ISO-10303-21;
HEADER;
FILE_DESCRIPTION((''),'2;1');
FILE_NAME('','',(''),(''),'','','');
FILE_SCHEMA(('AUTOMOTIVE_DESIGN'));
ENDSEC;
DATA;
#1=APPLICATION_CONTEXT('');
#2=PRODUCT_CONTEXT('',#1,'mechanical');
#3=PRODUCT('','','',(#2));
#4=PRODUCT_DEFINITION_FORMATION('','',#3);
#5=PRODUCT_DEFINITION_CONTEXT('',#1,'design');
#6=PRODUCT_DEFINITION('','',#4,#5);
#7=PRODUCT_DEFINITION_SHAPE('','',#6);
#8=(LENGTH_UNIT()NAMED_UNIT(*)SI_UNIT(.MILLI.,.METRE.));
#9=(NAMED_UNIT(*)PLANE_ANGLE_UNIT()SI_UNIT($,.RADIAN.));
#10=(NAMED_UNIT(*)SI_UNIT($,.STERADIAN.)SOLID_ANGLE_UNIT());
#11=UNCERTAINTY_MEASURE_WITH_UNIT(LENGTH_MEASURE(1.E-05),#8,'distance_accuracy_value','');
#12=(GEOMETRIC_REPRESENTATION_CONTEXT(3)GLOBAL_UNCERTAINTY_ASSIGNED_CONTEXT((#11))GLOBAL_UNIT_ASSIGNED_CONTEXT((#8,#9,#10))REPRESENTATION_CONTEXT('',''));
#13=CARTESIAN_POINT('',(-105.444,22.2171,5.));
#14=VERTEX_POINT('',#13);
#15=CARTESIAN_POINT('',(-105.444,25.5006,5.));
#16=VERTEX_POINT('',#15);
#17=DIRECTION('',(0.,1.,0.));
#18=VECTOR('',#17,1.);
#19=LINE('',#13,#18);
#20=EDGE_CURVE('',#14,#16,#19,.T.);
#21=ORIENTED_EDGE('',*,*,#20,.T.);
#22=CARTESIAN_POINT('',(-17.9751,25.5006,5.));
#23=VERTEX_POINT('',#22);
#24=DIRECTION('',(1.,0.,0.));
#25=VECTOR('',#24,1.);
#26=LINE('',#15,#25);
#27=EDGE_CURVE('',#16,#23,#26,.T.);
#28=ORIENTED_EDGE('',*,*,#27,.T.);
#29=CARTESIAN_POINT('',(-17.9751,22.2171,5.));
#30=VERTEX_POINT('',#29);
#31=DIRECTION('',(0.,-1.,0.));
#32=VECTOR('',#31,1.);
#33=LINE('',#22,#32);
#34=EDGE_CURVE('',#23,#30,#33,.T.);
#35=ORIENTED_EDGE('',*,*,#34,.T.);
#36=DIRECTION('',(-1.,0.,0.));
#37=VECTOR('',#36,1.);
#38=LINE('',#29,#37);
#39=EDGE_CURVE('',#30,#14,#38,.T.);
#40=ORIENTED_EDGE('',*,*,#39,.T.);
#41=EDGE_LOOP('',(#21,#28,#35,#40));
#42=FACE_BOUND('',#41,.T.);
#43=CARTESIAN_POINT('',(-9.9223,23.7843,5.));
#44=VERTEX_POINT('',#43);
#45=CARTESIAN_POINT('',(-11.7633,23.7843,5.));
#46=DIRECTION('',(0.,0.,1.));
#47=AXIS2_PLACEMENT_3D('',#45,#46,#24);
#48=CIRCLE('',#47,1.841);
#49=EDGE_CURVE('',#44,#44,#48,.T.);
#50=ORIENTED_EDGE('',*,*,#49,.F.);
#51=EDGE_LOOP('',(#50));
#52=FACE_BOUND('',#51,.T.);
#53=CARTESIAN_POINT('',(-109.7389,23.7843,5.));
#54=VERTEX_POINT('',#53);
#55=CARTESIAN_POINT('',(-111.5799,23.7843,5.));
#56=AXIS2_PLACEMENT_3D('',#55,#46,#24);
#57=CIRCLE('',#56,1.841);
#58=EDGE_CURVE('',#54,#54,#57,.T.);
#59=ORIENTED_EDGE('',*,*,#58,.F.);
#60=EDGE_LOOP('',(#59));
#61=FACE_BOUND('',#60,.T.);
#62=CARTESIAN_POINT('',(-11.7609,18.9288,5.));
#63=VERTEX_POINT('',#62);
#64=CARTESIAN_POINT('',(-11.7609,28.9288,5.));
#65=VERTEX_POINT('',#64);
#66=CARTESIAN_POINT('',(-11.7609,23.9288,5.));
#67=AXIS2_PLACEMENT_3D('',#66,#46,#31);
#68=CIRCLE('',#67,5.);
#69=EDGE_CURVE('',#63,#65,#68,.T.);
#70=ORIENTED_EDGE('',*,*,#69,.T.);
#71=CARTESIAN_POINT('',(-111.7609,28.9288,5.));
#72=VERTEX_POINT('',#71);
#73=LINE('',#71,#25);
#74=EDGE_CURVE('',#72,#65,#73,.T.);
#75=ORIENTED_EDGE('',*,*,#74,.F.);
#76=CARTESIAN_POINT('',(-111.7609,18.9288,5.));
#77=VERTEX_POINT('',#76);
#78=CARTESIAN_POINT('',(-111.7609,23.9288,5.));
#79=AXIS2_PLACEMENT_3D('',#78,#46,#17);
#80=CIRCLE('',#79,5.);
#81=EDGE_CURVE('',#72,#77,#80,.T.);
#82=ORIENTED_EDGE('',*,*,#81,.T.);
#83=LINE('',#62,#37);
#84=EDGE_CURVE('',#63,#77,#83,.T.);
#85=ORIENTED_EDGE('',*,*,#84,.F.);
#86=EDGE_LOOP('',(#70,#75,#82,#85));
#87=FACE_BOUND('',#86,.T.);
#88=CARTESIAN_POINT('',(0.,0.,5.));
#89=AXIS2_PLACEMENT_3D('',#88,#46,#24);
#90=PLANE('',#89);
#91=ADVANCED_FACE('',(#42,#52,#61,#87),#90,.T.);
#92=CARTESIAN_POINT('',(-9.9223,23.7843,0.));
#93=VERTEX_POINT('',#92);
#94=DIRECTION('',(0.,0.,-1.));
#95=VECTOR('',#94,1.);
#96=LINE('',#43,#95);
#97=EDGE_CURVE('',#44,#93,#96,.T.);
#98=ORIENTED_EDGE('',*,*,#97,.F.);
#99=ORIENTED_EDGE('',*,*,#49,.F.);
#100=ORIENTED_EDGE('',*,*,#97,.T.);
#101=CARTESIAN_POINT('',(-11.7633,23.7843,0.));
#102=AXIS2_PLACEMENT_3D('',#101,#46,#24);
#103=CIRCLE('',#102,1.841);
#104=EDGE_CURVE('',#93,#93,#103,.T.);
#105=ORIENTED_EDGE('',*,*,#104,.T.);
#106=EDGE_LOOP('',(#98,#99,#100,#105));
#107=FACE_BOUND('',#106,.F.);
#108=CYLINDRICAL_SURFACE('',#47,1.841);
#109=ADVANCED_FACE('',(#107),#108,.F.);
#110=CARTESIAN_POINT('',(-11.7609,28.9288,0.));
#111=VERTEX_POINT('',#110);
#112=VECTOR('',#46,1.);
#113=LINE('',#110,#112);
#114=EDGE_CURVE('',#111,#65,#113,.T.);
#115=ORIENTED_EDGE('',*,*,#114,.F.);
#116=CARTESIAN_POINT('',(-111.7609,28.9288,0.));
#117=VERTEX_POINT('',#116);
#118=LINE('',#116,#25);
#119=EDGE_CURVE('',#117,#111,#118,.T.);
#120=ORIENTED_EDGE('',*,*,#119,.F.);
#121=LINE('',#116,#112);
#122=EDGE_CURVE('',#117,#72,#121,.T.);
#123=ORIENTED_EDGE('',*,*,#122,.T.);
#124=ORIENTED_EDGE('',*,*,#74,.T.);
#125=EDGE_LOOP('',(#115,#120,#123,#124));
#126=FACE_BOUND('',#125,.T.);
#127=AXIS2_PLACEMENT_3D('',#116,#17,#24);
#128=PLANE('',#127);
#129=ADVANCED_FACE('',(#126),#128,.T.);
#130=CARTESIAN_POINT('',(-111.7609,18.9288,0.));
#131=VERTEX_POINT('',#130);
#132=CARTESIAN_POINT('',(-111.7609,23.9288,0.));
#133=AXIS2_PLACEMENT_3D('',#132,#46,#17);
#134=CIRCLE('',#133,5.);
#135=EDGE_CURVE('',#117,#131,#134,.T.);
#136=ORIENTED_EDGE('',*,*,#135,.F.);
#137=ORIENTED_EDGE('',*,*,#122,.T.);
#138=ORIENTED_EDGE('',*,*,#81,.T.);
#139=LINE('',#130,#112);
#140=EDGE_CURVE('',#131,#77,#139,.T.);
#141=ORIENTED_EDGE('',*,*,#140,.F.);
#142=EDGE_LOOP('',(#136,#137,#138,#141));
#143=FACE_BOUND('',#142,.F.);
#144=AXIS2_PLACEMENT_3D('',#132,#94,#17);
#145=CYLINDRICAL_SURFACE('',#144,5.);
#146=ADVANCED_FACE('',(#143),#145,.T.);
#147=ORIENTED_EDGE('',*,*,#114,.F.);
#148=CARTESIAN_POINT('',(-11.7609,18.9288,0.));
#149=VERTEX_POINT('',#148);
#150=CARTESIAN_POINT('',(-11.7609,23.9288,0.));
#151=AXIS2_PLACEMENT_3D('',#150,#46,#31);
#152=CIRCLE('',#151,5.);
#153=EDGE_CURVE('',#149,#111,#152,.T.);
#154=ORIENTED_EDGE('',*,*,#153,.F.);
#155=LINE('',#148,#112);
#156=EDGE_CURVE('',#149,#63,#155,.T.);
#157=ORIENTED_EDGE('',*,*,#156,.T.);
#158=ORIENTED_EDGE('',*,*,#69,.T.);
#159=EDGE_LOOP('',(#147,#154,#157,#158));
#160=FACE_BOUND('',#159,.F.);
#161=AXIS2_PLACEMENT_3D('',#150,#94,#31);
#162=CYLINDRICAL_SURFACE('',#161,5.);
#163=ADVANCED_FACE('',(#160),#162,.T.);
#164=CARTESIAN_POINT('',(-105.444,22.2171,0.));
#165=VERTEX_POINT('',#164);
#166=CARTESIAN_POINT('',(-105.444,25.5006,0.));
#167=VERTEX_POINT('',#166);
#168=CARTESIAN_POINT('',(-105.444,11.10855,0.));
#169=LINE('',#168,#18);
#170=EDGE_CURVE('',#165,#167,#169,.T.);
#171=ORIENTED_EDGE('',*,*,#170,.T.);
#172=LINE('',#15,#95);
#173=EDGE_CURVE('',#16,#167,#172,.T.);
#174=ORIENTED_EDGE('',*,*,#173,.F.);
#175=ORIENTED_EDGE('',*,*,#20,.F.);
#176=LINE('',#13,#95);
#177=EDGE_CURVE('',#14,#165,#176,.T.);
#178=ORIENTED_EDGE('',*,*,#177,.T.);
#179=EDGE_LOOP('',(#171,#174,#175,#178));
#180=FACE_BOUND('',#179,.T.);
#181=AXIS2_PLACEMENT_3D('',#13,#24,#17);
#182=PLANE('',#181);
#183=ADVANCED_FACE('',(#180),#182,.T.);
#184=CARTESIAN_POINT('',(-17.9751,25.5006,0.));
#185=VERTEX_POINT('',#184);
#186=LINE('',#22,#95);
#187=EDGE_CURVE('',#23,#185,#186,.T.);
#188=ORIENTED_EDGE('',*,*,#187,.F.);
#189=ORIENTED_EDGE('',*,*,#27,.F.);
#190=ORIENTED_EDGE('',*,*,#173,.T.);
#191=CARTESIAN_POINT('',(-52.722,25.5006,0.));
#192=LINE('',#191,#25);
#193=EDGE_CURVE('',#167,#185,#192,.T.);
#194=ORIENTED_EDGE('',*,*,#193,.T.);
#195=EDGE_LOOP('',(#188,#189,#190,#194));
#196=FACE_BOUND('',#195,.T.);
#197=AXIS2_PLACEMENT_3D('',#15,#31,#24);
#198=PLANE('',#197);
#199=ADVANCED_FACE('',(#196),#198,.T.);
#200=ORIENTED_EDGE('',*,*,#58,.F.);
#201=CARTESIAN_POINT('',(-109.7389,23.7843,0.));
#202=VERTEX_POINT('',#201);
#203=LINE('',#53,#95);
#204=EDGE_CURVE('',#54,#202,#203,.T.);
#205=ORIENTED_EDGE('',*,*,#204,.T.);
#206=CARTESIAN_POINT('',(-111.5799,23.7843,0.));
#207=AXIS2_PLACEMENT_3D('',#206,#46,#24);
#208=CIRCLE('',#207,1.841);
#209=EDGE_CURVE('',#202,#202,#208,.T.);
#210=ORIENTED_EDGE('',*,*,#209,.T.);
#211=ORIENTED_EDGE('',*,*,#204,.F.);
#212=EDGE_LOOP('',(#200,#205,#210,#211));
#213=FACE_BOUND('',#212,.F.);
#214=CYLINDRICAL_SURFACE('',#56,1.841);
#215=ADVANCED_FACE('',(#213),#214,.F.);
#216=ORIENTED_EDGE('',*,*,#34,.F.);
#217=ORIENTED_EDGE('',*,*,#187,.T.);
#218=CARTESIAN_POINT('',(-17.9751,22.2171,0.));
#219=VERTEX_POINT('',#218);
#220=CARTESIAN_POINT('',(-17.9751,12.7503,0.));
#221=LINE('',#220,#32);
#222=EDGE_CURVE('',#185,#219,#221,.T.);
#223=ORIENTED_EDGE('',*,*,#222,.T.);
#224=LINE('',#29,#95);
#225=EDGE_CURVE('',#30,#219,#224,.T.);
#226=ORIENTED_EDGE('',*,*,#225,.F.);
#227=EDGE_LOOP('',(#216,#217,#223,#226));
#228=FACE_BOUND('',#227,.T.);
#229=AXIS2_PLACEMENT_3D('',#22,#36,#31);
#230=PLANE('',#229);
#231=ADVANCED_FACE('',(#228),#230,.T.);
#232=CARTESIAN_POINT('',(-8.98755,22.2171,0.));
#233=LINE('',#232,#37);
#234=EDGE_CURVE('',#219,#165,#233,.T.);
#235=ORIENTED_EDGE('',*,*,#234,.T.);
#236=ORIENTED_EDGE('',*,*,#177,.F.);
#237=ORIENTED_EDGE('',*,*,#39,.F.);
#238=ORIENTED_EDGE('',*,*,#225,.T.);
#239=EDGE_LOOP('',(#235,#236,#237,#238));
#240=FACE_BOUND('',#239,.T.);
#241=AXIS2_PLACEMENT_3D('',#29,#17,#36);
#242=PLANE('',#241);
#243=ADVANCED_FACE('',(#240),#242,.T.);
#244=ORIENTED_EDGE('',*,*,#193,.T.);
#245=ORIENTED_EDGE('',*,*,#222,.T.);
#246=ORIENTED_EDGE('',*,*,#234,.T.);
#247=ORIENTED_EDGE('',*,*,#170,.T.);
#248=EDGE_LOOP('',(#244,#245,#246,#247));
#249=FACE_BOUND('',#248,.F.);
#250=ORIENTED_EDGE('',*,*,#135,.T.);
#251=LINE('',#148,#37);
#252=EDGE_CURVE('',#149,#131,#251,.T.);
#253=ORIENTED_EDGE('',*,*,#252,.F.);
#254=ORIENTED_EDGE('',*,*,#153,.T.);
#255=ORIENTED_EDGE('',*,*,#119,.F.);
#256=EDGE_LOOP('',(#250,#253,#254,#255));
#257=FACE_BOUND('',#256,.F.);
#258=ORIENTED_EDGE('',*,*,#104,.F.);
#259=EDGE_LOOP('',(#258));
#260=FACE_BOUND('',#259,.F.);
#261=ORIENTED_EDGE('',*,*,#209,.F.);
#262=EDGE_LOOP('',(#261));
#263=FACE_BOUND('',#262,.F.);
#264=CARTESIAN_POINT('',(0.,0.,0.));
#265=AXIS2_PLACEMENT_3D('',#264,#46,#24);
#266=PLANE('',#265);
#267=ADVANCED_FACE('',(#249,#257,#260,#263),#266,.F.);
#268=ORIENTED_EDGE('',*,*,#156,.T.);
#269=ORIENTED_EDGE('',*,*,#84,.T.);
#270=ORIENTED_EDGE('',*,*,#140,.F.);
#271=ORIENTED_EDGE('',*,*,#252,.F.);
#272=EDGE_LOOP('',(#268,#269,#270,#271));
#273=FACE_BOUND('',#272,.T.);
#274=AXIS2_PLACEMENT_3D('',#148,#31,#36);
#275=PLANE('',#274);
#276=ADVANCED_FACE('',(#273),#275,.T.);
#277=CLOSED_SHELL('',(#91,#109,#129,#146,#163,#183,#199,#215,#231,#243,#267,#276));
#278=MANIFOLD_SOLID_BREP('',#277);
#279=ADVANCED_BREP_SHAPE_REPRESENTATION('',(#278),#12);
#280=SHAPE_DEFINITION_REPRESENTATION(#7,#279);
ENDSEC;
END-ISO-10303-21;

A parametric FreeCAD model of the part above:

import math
import FreeCAD as App
import Part
import Sketcher
from FreeCAD import Vector
Q = App.Units.Quantity


def add_polygon(sketch, points):
    """Adds a closed chain of lines whose ends are joined by coincident constraints."""
    first, n = sketch.GeometryCount, len(points)
    for a, b in zip(points, points[1:] + points[:1]):
        sketch.addGeometry(Part.LineSegment(App.Vector(*a, 0), App.Vector(*b, 0)), False)
    for i in range(n):
        sketch.addConstraint(Sketcher.Constraint("Coincident", first + i, 2, first + (i + 1) % n, 1))

doc = App.newDocument("Part")
body = doc.addObject("PartDesign::Body", "Body")

# Sketch on XY plane
sketch1 = body.newObject("Sketcher::SketchObject", "Sketch")
sketch1.AttachmentSupport = (doc.getObject("XY_Plane"), [""])
sketch1.MapMode = "FlatFace"
sketch1.addGeometry([
    Part.LineSegment(Vector(-12, 29, 0), Vector(-112, 29, 0)),
    Part.ArcOfCircle(Part.Circle(Vector(-112, 24, 0), Vector(0, 0, 1), 5), math.radians(90), math.radians(270)),
    Part.LineSegment(Vector(-112, 19, 0), Vector(-12, 19, 0)),
    Part.ArcOfCircle(Part.Circle(Vector(-12, 24, 0), Vector(0, 0, 1), 5), math.radians(-90), math.radians(90)),
], False)
sketch1.addConstraint([
    Sketcher.Constraint("Tangent", 0, 2, 1, 1),
    Sketcher.Constraint("Tangent", 1, 2, 2, 1),
    Sketcher.Constraint("Tangent", 2, 2, 3, 1),
    Sketcher.Constraint("Tangent", 3, 2, 0, 1),
    Sketcher.Constraint("Horizontal", 0),
    Sketcher.Constraint("Horizontal", 2),
    Sketcher.Constraint("Radius", 1, Q("5 mm")),
    Sketcher.Constraint("DistanceX", 0, 2, 0, 1, Q("100 mm")),
    Sketcher.Constraint("DistanceX", 1, 3, -1, 1, Q("111.761 mm")),
    Sketcher.Constraint("DistanceY", -1, 1, 1, 3, Q("23.9288 mm")),
])
pad1 = body.newObject("PartDesign::Pad", "Pad")
pad1.Profile = sketch1
pad1.Length = 5

# Sketch on XY plane
sketch2 = body.newObject("Sketcher::SketchObject", "Sketch001")
sketch2.AttachmentSupport = (doc.getObject("XY_Plane"), [""])
sketch2.MapMode = "FlatFace"
sketch2.AttachmentOffset = App.Placement(Vector(0, 0, 5), App.Rotation())
sketch2.addGeometry([
    Part.Circle(Vector(-11.8, 23.8, 0), Vector(0, 0, 1), 1.8),
    Part.Circle(Vector(-111.6, 23.8, 0), Vector(0, 0, 1), 1.8),
], False)
sketch2.addConstraint([
    Sketcher.Constraint("Equal", 0, 1),
    Sketcher.Constraint("Horizontal", 0, 3, 1, 3),
    Sketcher.Constraint("Diameter", 0, Q("3.682 mm")),
    Sketcher.Constraint("DistanceX", 1, 3, -1, 1, Q("111.58 mm")),
    Sketcher.Constraint("DistanceX", 0, 3, -1, 1, Q("11.7633 mm")),
    Sketcher.Constraint("DistanceY", -1, 1, 0, 3, Q("23.7843 mm")),
])
pocket1 = body.newObject("PartDesign::Pocket", "Pocket")
pocket1.Profile = sketch2
pocket1.Length = 5

# Sketch on XY plane
sketch3 = body.newObject("Sketcher::SketchObject", "Sketch002")
sketch3.AttachmentSupport = (doc.getObject("XY_Plane"), [""])
sketch3.MapMode = "FlatFace"
sketch3.AttachmentOffset = App.Placement(Vector(0, 0, 5), App.Rotation())
add_polygon(sketch3, [(-18, 25.5), (-105.4, 25.5), (-105.4, 22.2), (-18, 22.2)])  # lines 0-3
sketch3.addConstraint([
    Sketcher.Constraint("Horizontal", 0),
    Sketcher.Constraint("Vertical", 1),
    Sketcher.Constraint("Horizontal", 2),
    Sketcher.Constraint("Vertical", 3),
    Sketcher.Constraint("DistanceX", 0, 2, 0, 1, Q("87.469 mm")),
    Sketcher.Constraint("DistanceY", 1, 2, 1, 1, Q("3.2835 mm")),
    Sketcher.Constraint("DistanceX", 0, 2, -1, 1, Q("105.444 mm")),
    Sketcher.Constraint("DistanceY", -1, 1, 1, 2, Q("22.217 mm")),
])
pocket2 = body.newObject("PartDesign::Pocket", "Pocket001")
pocket2.Profile = sketch3
pocket2.Length = 10

doc.recompute()
